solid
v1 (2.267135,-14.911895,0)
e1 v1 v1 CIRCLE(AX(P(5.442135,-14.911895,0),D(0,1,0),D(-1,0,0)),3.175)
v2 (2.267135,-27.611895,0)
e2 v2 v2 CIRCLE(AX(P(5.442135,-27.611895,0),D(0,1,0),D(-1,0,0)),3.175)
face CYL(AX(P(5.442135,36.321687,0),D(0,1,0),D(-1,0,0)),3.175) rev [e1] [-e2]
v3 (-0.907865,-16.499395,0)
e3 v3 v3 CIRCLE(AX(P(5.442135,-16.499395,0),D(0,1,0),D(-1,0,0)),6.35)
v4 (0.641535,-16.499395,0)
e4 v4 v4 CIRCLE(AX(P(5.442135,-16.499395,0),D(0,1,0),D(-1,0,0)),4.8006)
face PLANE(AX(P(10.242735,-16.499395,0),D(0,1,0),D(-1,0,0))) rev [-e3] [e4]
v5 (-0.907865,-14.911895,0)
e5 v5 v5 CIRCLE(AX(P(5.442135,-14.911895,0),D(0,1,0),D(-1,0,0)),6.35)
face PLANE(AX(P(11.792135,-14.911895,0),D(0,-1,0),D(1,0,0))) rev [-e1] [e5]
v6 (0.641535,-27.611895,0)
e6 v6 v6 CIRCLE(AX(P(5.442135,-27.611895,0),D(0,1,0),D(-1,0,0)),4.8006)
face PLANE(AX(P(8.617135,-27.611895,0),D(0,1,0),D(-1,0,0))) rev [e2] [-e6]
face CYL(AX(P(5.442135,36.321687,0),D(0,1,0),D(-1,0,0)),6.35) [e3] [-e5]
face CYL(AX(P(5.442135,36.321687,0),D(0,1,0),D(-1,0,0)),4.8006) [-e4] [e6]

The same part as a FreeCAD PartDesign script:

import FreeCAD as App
import Part
import Sketcher

V = App.Vector
Q = App.Units.Quantity

doc = App.newDocument("Part")
body = doc.addObject("PartDesign::Body", "Body")

# Sketch on XY plane
sketch1 = body.newObject("Sketcher::SketchObject", "Sketch")
sketch1.AttachmentSupport = (doc.getObject("XY_Plane"), [""])
sketch1.MapMode = "FlatFace"
sketch1.addGeometry([
    Part.LineSegment(V(8.617135, -14.911895, 0), V(8.617135, -27.611895, 0)),  # 0
    Part.LineSegment(V(8.617135, -27.611895, 0), V(10.242735, -27.611895, 0)),  # 1
    Part.LineSegment(V(10.242735, -27.611895, 0), V(10.242735, -16.499395, 0)),  # 2
    Part.LineSegment(V(10.242735, -16.499395, 0), V(11.792135, -16.499395, 0)),  # 3
    Part.LineSegment(V(11.792135, -16.499395, 0), V(11.792135, -14.911895, 0)),  # 4
    Part.LineSegment(V(11.792135, -14.911895, 0), V(8.617135, -14.911895, 0)),  # 5
], False)
sketch1.addGeometry(Part.LineSegment(V(5.442135, -14.911895, 0), V(5.442135, -27.611895, 0)), True)  # axis
sketch1.addConstraint([
    Sketcher.Constraint("Coincident", 0, 2, 1, 1),
    Sketcher.Constraint("Coincident", 1, 2, 2, 1),
    Sketcher.Constraint("Coincident", 2, 2, 3, 1),
    Sketcher.Constraint("Coincident", 3, 2, 4, 1),
    Sketcher.Constraint("Coincident", 4, 2, 5, 1),
    Sketcher.Constraint("Coincident", 5, 2, 0, 1),
    Sketcher.Constraint("Vertical", 0),
    Sketcher.Constraint("Horizontal", 1),
    Sketcher.Constraint("Vertical", 2),
    Sketcher.Constraint("Horizontal", 3),
    Sketcher.Constraint("Vertical", 4),
    Sketcher.Constraint("Horizontal", 5),
    Sketcher.Constraint("Vertical", 6),
    Sketcher.Constraint("Horizontal", 5, 2, 6, 1),
    Sketcher.Constraint("Horizontal", 1, 2, 6, 2),
    Sketcher.Constraint("DistanceY", 0, 2, 0, 1, Q("0.5 in")),
    Sketcher.Constraint("DistanceX", 1, 1, 1, 2, Q("0.064 in")),
    Sketcher.Constraint("DistanceX", 3, 1, 3, 2, Q("0.061 in")),
    Sketcher.Constraint("DistanceY", 2, 1, 2, 2, Q("0.4375 in")),
    Sketcher.Constraint("DistanceX", 6, 1, 4, 2, Q("0.25 in")),
    Sketcher.Constraint("DistanceX", -1, 1, 0, 2, 8.617135),
    Sketcher.Constraint("DistanceY", 0, 2, -1, 1, 27.611895),
])
revolution = body.newObject("PartDesign::Revolution", "Revolution")
revolution.Profile = sketch1
revolution.ReferenceAxis = (sketch1, ["Axis0"])
revolution.Angle = 360

doc.recompute()
